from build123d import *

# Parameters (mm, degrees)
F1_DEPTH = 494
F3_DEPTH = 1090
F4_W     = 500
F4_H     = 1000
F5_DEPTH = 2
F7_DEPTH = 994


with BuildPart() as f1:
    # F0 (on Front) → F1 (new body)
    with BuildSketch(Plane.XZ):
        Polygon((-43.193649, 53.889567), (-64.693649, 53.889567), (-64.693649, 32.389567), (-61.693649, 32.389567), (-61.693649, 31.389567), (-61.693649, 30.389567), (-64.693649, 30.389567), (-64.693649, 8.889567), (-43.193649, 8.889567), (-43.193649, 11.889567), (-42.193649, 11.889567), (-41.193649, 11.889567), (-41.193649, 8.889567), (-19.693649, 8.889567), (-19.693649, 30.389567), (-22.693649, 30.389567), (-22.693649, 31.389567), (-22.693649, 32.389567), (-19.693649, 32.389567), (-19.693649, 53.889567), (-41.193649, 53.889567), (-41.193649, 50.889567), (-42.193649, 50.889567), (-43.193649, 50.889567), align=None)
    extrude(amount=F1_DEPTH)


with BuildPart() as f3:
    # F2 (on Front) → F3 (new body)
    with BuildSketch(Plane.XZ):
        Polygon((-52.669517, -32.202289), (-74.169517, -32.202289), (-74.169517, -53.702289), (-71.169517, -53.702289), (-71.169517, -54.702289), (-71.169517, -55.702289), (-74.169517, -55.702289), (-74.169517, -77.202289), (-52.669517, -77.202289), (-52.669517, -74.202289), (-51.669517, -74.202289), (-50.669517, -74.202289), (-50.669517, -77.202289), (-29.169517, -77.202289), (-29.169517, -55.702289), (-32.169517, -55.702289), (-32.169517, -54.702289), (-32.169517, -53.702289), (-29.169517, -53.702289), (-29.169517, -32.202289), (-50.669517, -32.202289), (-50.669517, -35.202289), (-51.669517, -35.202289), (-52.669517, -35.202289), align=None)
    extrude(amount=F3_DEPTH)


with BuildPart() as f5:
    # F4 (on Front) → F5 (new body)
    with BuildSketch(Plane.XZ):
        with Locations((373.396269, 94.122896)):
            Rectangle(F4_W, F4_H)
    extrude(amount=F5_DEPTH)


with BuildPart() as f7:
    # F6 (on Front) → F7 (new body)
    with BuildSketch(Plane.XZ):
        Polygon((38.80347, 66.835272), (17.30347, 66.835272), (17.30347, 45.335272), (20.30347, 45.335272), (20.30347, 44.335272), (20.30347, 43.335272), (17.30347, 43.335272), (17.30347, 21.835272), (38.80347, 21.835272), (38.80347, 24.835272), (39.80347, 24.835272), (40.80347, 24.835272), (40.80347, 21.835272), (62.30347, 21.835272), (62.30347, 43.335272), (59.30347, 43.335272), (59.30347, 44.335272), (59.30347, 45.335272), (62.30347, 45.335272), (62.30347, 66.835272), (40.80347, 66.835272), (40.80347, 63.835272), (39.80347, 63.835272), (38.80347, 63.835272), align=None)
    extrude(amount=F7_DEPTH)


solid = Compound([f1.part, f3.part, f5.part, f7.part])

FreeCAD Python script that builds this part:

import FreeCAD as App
import Part
import Sketcher

V = App.Vector

doc = App.newDocument("Part")
params = doc.addObject("Spreadsheet::Sheet", "Params")
for row, (alias, value) in enumerate([
    ("sketch1_width", "3 mm"),
    ("sketch1_width2", "2 mm"),
    ("sketch1_width3", "21.5 mm"),
    ("pad1_length", "494 mm"),
    ("sketch2_width", "3 mm"),
    ("sketch2_width2", "2 mm"),
    ("sketch2_width3", "21.5 mm"),
    ("pad2_length", "1090 mm"),
    ("sketch3_width", "500 mm"),
    ("sketch3_height", "1000 mm"),
    ("pad3_length", "2 mm"),
    ("sketch4_width", "3 mm"),
    ("sketch4_width2", "2 mm"),
    ("sketch4_width3", "21.5 mm"),
    ("pad4_length", "994 mm"),
], start=1):
    params.set(f"A{row}", alias)
    params.set(f"B{row}", "=" + value)
    params.setAlias(f"B{row}", alias)

body = doc.addObject("PartDesign::Body", "Body")

sketch1 = body.newObject("Sketcher::SketchObject", "Sketch")
sketch1.AttachmentSupport = (doc.getObject("XZ_Plane"), [""])
sketch1.MapMode = "FlatFace"
sketch1.addGeometry([
    Part.LineSegment(V(-43.2, 53.9, 0), V(-64.7, 53.9, 0)),
    Part.LineSegment(V(-64.7, 53.9, 0), V(-64.7, 32.4, 0)),
    Part.LineSegment(V(-64.7, 32.4, 0), V(-61.7, 32.4, 0)),
    Part.LineSegment(V(-61.7, 32.4, 0), V(-61.7, 30.4, 0)),
    Part.LineSegment(V(-61.7, 30.4, 0), V(-64.7, 30.4, 0)),
    Part.LineSegment(V(-64.7, 30.4, 0), V(-64.7, 8.9, 0)),
    Part.LineSegment(V(-64.7, 8.9, 0), V(-43.2, 8.9, 0)),
    Part.LineSegment(V(-43.2, 8.9, 0), V(-43.2, 11.9, 0)),
    Part.LineSegment(V(-43.2, 11.9, 0), V(-41.2, 11.9, 0)),
    Part.LineSegment(V(-41.2, 11.9, 0), V(-41.2, 8.9, 0)),
    Part.LineSegment(V(-41.2, 8.9, 0), V(-19.7, 8.9, 0)),
    Part.LineSegment(V(-19.7, 8.9, 0), V(-19.7, 30.4, 0)),
    Part.LineSegment(V(-19.7, 30.4, 0), V(-22.7, 30.4, 0)),
    Part.LineSegment(V(-22.7, 30.4, 0), V(-22.7, 32.4, 0)),
    Part.LineSegment(V(-22.7, 32.4, 0), V(-19.7, 32.4, 0)),
    Part.LineSegment(V(-19.7, 32.4, 0), V(-19.7, 53.9, 0)),
    Part.LineSegment(V(-19.7, 53.9, 0), V(-41.2, 53.9, 0)),
    Part.LineSegment(V(-41.2, 53.9, 0), V(-41.2, 50.9, 0)),
    Part.LineSegment(V(-41.2, 50.9, 0), V(-43.2, 50.9, 0)),
    Part.LineSegment(V(-43.2, 50.9, 0), V(-43.2, 53.9, 0)),
], False)
sketch1.addConstraint([
    Sketcher.Constraint("Coincident", 0, 2, 1, 1),
    Sketcher.Constraint("Coincident", 1, 2, 2, 1),
    Sketcher.Constraint("Coincident", 2, 2, 3, 1),
    Sketcher.Constraint("Coincident", 3, 2, 4, 1),
    Sketcher.Constraint("Coincident", 4, 2, 5, 1),
    Sketcher.Constraint("Coincident", 5, 2, 6, 1),
    Sketcher.Constraint("Coincident", 6, 2, 7, 1),
    Sketcher.Constraint("Coincident", 7, 2, 8, 1),
    Sketcher.Constraint("Coincident", 8, 2, 9, 1),
    Sketcher.Constraint("Coincident", 9, 2, 10, 1),
    Sketcher.Constraint("Coincident", 10, 2, 11, 1),
    Sketcher.Constraint("Coincident", 11, 2, 12, 1),
    Sketcher.Constraint("Coincident", 12, 2, 13, 1),
    Sketcher.Constraint("Coincident", 13, 2, 14, 1),
    Sketcher.Constraint("Coincident", 14, 2, 15, 1),
    Sketcher.Constraint("Coincident", 15, 2, 16, 1),
    Sketcher.Constraint("Coincident", 16, 2, 17, 1),
    Sketcher.Constraint("Coincident", 17, 2, 18, 1),
    Sketcher.Constraint("Coincident", 18, 2, 19, 1),
    Sketcher.Constraint("Coincident", 19, 2, 0, 1),
    Sketcher.Constraint("Horizontal", 0),
    Sketcher.Constraint("Vertical", 1),
    Sketcher.Constraint("Horizontal", 2),
    Sketcher.Constraint("Vertical", 3),
    Sketcher.Constraint("Horizontal", 4),
    Sketcher.Constraint("Vertical", 5),
    Sketcher.Constraint("Horizontal", 6),
    Sketcher.Constraint("Vertical", 7),
    Sketcher.Constraint("Horizontal", 8),
    Sketcher.Constraint("Vertical", 9),
    Sketcher.Constraint("Horizontal", 10),
    Sketcher.Constraint("Vertical", 11),
    Sketcher.Constraint("Horizontal", 12),
    Sketcher.Constraint("Vertical", 13),
    Sketcher.Constraint("Horizontal", 14),
    Sketcher.Constraint("Vertical", 15),
    Sketcher.Constraint("Horizontal", 16),
    Sketcher.Constraint("Vertical", 17),
    Sketcher.Constraint("Horizontal", 18),
    Sketcher.Constraint("Vertical", 19),
    Sketcher.Constraint("Horizontal", 6, 2, 9, 2),
    Sketcher.Constraint("Horizontal", 4, 2, 11, 2),
    Sketcher.Constraint("Horizontal", 2, 2, 13, 2),
    Sketcher.Constraint("Horizontal", 0, 2, 15, 2),
    Sketcher.Constraint("Vertical", 1, 2, 4, 2),
    Sketcher.Constraint("Vertical", 11, 2, 14, 2),
    Sketcher.Constraint("Vertical", 9, 2, 16, 2),
    Sketcher.Constraint("Vertical", 7, 2, 18, 2),
    Sketcher.Constraint("Equal", 6, 10),
    Sketcher.Constraint("Equal", 4, 12),
    Sketcher.Constraint("Equal", 16, 1),
    Sketcher.Constraint("Equal", 18, 3),
    Sketcher.Constraint("Equal", 1, 5),
    Sketcher.Constraint("Equal", 14, 7),
    Sketcher.Constraint("Equal", 9, 17),
    Sketcher.Constraint("DistanceX", 2, 1, 2, 2, 3.0),
    Sketcher.Constraint("DistanceX", 8, 1, 8, 2, 2.0),
    Sketcher.Constraint("DistanceX", 0, 2, 0, 1, 21.5),
    Sketcher.Constraint("DistanceX", 0, 2, -1, 1, 64.693649),
    Sketcher.Constraint("DistanceY", -1, 1, 0, 2, 53.889567),
])
sketch1.setExpression("Constraints[55]", "Params.sketch1_width")
sketch1.setExpression("Constraints[56]", "Params.sketch1_width2")
sketch1.setExpression("Constraints[57]", "Params.sketch1_width3")
pad1 = body.newObject("PartDesign::Pad", "Pad")
pad1.Profile = sketch1
pad1.setExpression("Length", "Params.pad1_length")
body2 = doc.addObject("PartDesign::Body", "Body001")

sketch2 = body2.newObject("Sketcher::SketchObject", "Sketch001")
sketch2.AttachmentSupport = (doc.getObject("XZ_Plane001"), [""])
sketch2.MapMode = "FlatFace"
sketch2.addGeometry([
    Part.LineSegment(V(-52.7, -32.2, 0), V(-74.2, -32.2, 0)),
    Part.LineSegment(V(-74.2, -32.2, 0), V(-74.2, -53.7, 0)),
    Part.LineSegment(V(-74.2, -53.7, 0), V(-71.2, -53.7, 0)),
    Part.LineSegment(V(-71.2, -53.7, 0), V(-71.2, -55.7, 0)),
    Part.LineSegment(V(-71.2, -55.7, 0), V(-74.2, -55.7, 0)),
    Part.LineSegment(V(-74.2, -55.7, 0), V(-74.2, -77.2, 0)),
    Part.LineSegment(V(-74.2, -77.2, 0), V(-52.7, -77.2, 0)),
    Part.LineSegment(V(-52.7, -77.2, 0), V(-52.7, -74.2, 0)),
    Part.LineSegment(V(-52.7, -74.2, 0), V(-50.7, -74.2, 0)),
    Part.LineSegment(V(-50.7, -74.2, 0), V(-50.7, -77.2, 0)),
    Part.LineSegment(V(-50.7, -77.2, 0), V(-29.2, -77.2, 0)),
    Part.LineSegment(V(-29.2, -77.2, 0), V(-29.2, -55.7, 0)),
    Part.LineSegment(V(-29.2, -55.7, 0), V(-32.2, -55.7, 0)),
    Part.LineSegment(V(-32.2, -55.7, 0), V(-32.2, -53.7, 0)),
    Part.LineSegment(V(-32.2, -53.7, 0), V(-29.2, -53.7, 0)),
    Part.LineSegment(V(-29.2, -53.7, 0), V(-29.2, -32.2, 0)),
    Part.LineSegment(V(-29.2, -32.2, 0), V(-50.7, -32.2, 0)),
    Part.LineSegment(V(-50.7, -32.2, 0), V(-50.7, -35.2, 0)),
    Part.LineSegment(V(-50.7, -35.2, 0), V(-52.7, -35.2, 0)),
    Part.LineSegment(V(-52.7, -35.2, 0), V(-52.7, -32.2, 0)),
], False)
sketch2.addConstraint([
    Sketcher.Constraint("Coincident", 0, 2, 1, 1),
    Sketcher.Constraint("Coincident", 1, 2, 2, 1),
    Sketcher.Constraint("Coincident", 2, 2, 3, 1),
    Sketcher.Constraint("Coincident", 3, 2, 4, 1),
    Sketcher.Constraint("Coincident", 4, 2, 5, 1),
    Sketcher.Constraint("Coincident", 5, 2, 6, 1),
    Sketcher.Constraint("Coincident", 6, 2, 7, 1),
    Sketcher.Constraint("Coincident", 7, 2, 8, 1),
    Sketcher.Constraint("Coincident", 8, 2, 9, 1),
    Sketcher.Constraint("Coincident", 9, 2, 10, 1),
    Sketcher.Constraint("Coincident", 10, 2, 11, 1),
    Sketcher.Constraint("Coincident", 11, 2, 12, 1),
    Sketcher.Constraint("Coincident", 12, 2, 13, 1),
    Sketcher.Constraint("Coincident", 13, 2, 14, 1),
    Sketcher.Constraint("Coincident", 14, 2, 15, 1),
    Sketcher.Constraint("Coincident", 15, 2, 16, 1),
    Sketcher.Constraint("Coincident", 16, 2, 17, 1),
    Sketcher.Constraint("Coincident", 17, 2, 18, 1),
    Sketcher.Constraint("Coincident", 18, 2, 19, 1),
    Sketcher.Constraint("Coincident", 19, 2, 0, 1),
    Sketcher.Constraint("Horizontal", 0),
    Sketcher.Constraint("Vertical", 1),
    Sketcher.Constraint("Horizontal", 2),
    Sketcher.Constraint("Vertical", 3),
    Sketcher.Constraint("Horizontal", 4),
    Sketcher.Constraint("Vertical", 5),
    Sketcher.Constraint("Horizontal", 6),
    Sketcher.Constraint("Vertical", 7),
    Sketcher.Constraint("Horizontal", 8),
    Sketcher.Constraint("Vertical", 9),
    Sketcher.Constraint("Horizontal", 10),
    Sketcher.Constraint("Vertical", 11),
    Sketcher.Constraint("Horizontal", 12),
    Sketcher.Constraint("Vertical", 13),
    Sketcher.Constraint("Horizontal", 14),
    Sketcher.Constraint("Vertical", 15),
    Sketcher.Constraint("Horizontal", 16),
    Sketcher.Constraint("Vertical", 17),
    Sketcher.Constraint("Horizontal", 18),
    Sketcher.Constraint("Vertical", 19),
    Sketcher.Constraint("Horizontal", 6, 2, 9, 2),
    Sketcher.Constraint("Horizontal", 4, 2, 11, 2),
    Sketcher.Constraint("Horizontal", 2, 2, 13, 2),
    Sketcher.Constraint("Horizontal", 0, 2, 15, 2),
    Sketcher.Constraint("Vertical", 1, 2, 4, 2),
    Sketcher.Constraint("Vertical", 11, 2, 14, 2),
    Sketcher.Constraint("Vertical", 9, 2, 16, 2),
    Sketcher.Constraint("Vertical", 7, 2, 18, 2),
    Sketcher.Constraint("Equal", 6, 10),
    Sketcher.Constraint("Equal", 4, 12),
    Sketcher.Constraint("Equal", 16, 1),
    Sketcher.Constraint("Equal", 18, 3),
    Sketcher.Constraint("Equal", 1, 5),
    Sketcher.Constraint("Equal", 14, 7),
    Sketcher.Constraint("Equal", 9, 17),
    Sketcher.Constraint("DistanceX", 2, 1, 2, 2, 3.0),
    Sketcher.Constraint("DistanceX", 8, 1, 8, 2, 2.0),
    Sketcher.Constraint("DistanceX", 0, 2, 0, 1, 21.5),
    Sketcher.Constraint("DistanceY", 0, 2, -1, 1, 32.202289),
    Sketcher.Constraint("DistanceX", 0, 2, -1, 1, 74.169517),
])
sketch2.setExpression("Constraints[55]", "Params.sketch2_width")
sketch2.setExpression("Constraints[56]", "Params.sketch2_width2")
sketch2.setExpression("Constraints[57]", "Params.sketch2_width3")
pad2 = body2.newObject("PartDesign::Pad", "Pad001")
pad2.Profile = sketch2
pad2.setExpression("Length", "Params.pad2_length")
body3 = doc.addObject("PartDesign::Body", "Body002")

sketch3 = body3.newObject("Sketcher::SketchObject", "Sketch002")
sketch3.AttachmentSupport = (doc.getObject("XZ_Plane002"), [""])
sketch3.MapMode = "FlatFace"
sketch3.addGeometry([
    Part.LineSegment(V(123, 594, 0), V(123, -406, 0)),
    Part.LineSegment(V(123, -406, 0), V(623, -406, 0)),
    Part.LineSegment(V(623, -406, 0), V(623, 594, 0)),
    Part.LineSegment(V(623, 594, 0), V(123, 594, 0)),
], False)
sketch3.addConstraint([
    Sketcher.Constraint("Coincident", 0, 2, 1, 1),
    Sketcher.Constraint("Coincident", 1, 2, 2, 1),
    Sketcher.Constraint("Coincident", 2, 2, 3, 1),
    Sketcher.Constraint("Coincident", 3, 2, 0, 1),
    Sketcher.Constraint("Vertical", 0),
    Sketcher.Constraint("Horizontal", 1),
    Sketcher.Constraint("Vertical", 2),
    Sketcher.Constraint("Horizontal", 3),
    Sketcher.Constraint("DistanceX", 1, 1, 1, 2, 500.0),
    Sketcher.Constraint("DistanceY", 0, 2, 0, 1, 1000.0),
    Sketcher.Constraint("DistanceX", -1, 1, 0, 2, 123.396269),
    Sketcher.Constraint("DistanceY", 0, 2, -1, 1, 405.877104),
])
sketch3.setExpression("Constraints[8]", "Params.sketch3_width")
sketch3.setExpression("Constraints[9]", "Params.sketch3_height")
pad3 = body3.newObject("PartDesign::Pad", "Pad002")
pad3.Profile = sketch3
pad3.setExpression("Length", "Params.pad3_length")
body4 = doc.addObject("PartDesign::Body", "Body003")

sketch4 = body4.newObject("Sketcher::SketchObject", "Sketch003")
sketch4.AttachmentSupport = (doc.getObject("XZ_Plane003"), [""])
sketch4.MapMode = "FlatFace"
sketch4.addGeometry([
    Part.LineSegment(V(38.8, 66.8, 0), V(17.3, 66.8, 0)),
    Part.LineSegment(V(17.3, 66.8, 0), V(17.3, 45.3, 0)),
    Part.LineSegment(V(17.3, 45.3, 0), V(20.3, 45.3, 0)),
    Part.LineSegment(V(20.3, 45.3, 0), V(20.3, 43.3, 0)),
    Part.LineSegment(V(20.3, 43.3, 0), V(17.3, 43.3, 0)),
    Part.LineSegment(V(17.3, 43.3, 0), V(17.3, 21.8, 0)),
    Part.LineSegment(V(17.3, 21.8, 0), V(38.8, 21.8, 0)),
    Part.LineSegment(V(38.8, 21.8, 0), V(38.8, 24.8, 0)),
    Part.LineSegment(V(38.8, 24.8, 0), V(40.8, 24.8, 0)),
    Part.LineSegment(V(40.8, 24.8, 0), V(40.8, 21.8, 0)),
    Part.LineSegment(V(40.8, 21.8, 0), V(62.3, 21.8, 0)),
    Part.LineSegment(V(62.3, 21.8, 0), V(62.3, 43.3, 0)),
    Part.LineSegment(V(62.3, 43.3, 0), V(59.3, 43.3, 0)),
    Part.LineSegment(V(59.3, 43.3, 0), V(59.3, 45.3, 0)),
    Part.LineSegment(V(59.3, 45.3, 0), V(62.3, 45.3, 0)),
    Part.LineSegment(V(62.3, 45.3, 0), V(62.3, 66.8, 0)),
    Part.LineSegment(V(62.3, 66.8, 0), V(40.8, 66.8, 0)),
    Part.LineSegment(V(40.8, 66.8, 0), V(40.8, 63.8, 0)),
    Part.LineSegment(V(40.8, 63.8, 0), V(38.8, 63.8, 0)),
    Part.LineSegment(V(38.8, 63.8, 0), V(38.8, 66.8, 0)),
], False)
sketch4.addConstraint([
    Sketcher.Constraint("Coincident", 0, 2, 1, 1),
    Sketcher.Constraint("Coincident", 1, 2, 2, 1),
    Sketcher.Constraint("Coincident", 2, 2, 3, 1),
    Sketcher.Constraint("Coincident", 3, 2, 4, 1),
    Sketcher.Constraint("Coincident", 4, 2, 5, 1),
    Sketcher.Constraint("Coincident", 5, 2, 6, 1),
    Sketcher.Constraint("Coincident", 6, 2, 7, 1),
    Sketcher.Constraint("Coincident", 7, 2, 8, 1),
    Sketcher.Constraint("Coincident", 8, 2, 9, 1),
    Sketcher.Constraint("Coincident", 9, 2, 10, 1),
    Sketcher.Constraint("Coincident", 10, 2, 11, 1),
    Sketcher.Constraint("Coincident", 11, 2, 12, 1),
    Sketcher.Constraint("Coincident", 12, 2, 13, 1),
    Sketcher.Constraint("Coincident", 13, 2, 14, 1),
    Sketcher.Constraint("Coincident", 14, 2, 15, 1),
    Sketcher.Constraint("Coincident", 15, 2, 16, 1),
    Sketcher.Constraint("Coincident", 16, 2, 17, 1),
    Sketcher.Constraint("Coincident", 17, 2, 18, 1),
    Sketcher.Constraint("Coincident", 18, 2, 19, 1),
    Sketcher.Constraint("Coincident", 19, 2, 0, 1),
    Sketcher.Constraint("Horizontal", 0),
    Sketcher.Constraint("Vertical", 1),
    Sketcher.Constraint("Horizontal", 2),
    Sketcher.Constraint("Vertical", 3),
    Sketcher.Constraint("Horizontal", 4),
    Sketcher.Constraint("Vertical", 5),
    Sketcher.Constraint("Horizontal", 6),
    Sketcher.Constraint("Vertical", 7),
    Sketcher.Constraint("Horizontal", 8),
    Sketcher.Constraint("Vertical", 9),
    Sketcher.Constraint("Horizontal", 10),
    Sketcher.Constraint("Vertical", 11),
    Sketcher.Constraint("Horizontal", 12),
    Sketcher.Constraint("Vertical", 13),
    Sketcher.Constraint("Horizontal", 14),
    Sketcher.Constraint("Vertical", 15),
    Sketcher.Constraint("Horizontal", 16),
    Sketcher.Constraint("Vertical", 17),
    Sketcher.Constraint("Horizontal", 18),
    Sketcher.Constraint("Vertical", 19),
    Sketcher.Constraint("Horizontal", 6, 2, 9, 2),
    Sketcher.Constraint("Horizontal", 4, 2, 11, 2),
    Sketcher.Constraint("Horizontal", 2, 2, 13, 2),
    Sketcher.Constraint("Horizontal", 0, 2, 15, 2),
    Sketcher.Constraint("Vertical", 1, 2, 4, 2),
    Sketcher.Constraint("Vertical", 11, 2, 14, 2),
    Sketcher.Constraint("Vertical", 9, 2, 16, 2),
    Sketcher.Constraint("Vertical", 7, 2, 18, 2),
    Sketcher.Constraint("Equal", 6, 10),
    Sketcher.Constraint("Equal", 4, 12),
    Sketcher.Constraint("Equal", 16, 1),
    Sketcher.Constraint("Equal", 18, 3),
    Sketcher.Constraint("Equal", 1, 5),
    Sketcher.Constraint("Equal", 14, 7),
    Sketcher.Constraint("Equal", 9, 17),
    Sketcher.Constraint("DistanceX", 2, 1, 2, 2, 3.0),
    Sketcher.Constraint("DistanceX", 8, 1, 8, 2, 2.0),
    Sketcher.Constraint("DistanceX", 0, 2, 0, 1, 21.5),
    Sketcher.Constraint("DistanceX", -1, 1, 0, 2, 17.30347),
    Sketcher.Constraint("DistanceY", -1, 1, 5, 2, 21.835272),
])
sketch4.setExpression("Constraints[55]", "Params.sketch4_width")
sketch4.setExpression("Constraints[56]", "Params.sketch4_width2")
sketch4.setExpression("Constraints[57]", "Params.sketch4_width3")
pad4 = body4.newObject("PartDesign::Pad", "Pad003")
pad4.Profile = sketch4
pad4.setExpression("Length", "Params.pad4_length")

doc.recompute()
